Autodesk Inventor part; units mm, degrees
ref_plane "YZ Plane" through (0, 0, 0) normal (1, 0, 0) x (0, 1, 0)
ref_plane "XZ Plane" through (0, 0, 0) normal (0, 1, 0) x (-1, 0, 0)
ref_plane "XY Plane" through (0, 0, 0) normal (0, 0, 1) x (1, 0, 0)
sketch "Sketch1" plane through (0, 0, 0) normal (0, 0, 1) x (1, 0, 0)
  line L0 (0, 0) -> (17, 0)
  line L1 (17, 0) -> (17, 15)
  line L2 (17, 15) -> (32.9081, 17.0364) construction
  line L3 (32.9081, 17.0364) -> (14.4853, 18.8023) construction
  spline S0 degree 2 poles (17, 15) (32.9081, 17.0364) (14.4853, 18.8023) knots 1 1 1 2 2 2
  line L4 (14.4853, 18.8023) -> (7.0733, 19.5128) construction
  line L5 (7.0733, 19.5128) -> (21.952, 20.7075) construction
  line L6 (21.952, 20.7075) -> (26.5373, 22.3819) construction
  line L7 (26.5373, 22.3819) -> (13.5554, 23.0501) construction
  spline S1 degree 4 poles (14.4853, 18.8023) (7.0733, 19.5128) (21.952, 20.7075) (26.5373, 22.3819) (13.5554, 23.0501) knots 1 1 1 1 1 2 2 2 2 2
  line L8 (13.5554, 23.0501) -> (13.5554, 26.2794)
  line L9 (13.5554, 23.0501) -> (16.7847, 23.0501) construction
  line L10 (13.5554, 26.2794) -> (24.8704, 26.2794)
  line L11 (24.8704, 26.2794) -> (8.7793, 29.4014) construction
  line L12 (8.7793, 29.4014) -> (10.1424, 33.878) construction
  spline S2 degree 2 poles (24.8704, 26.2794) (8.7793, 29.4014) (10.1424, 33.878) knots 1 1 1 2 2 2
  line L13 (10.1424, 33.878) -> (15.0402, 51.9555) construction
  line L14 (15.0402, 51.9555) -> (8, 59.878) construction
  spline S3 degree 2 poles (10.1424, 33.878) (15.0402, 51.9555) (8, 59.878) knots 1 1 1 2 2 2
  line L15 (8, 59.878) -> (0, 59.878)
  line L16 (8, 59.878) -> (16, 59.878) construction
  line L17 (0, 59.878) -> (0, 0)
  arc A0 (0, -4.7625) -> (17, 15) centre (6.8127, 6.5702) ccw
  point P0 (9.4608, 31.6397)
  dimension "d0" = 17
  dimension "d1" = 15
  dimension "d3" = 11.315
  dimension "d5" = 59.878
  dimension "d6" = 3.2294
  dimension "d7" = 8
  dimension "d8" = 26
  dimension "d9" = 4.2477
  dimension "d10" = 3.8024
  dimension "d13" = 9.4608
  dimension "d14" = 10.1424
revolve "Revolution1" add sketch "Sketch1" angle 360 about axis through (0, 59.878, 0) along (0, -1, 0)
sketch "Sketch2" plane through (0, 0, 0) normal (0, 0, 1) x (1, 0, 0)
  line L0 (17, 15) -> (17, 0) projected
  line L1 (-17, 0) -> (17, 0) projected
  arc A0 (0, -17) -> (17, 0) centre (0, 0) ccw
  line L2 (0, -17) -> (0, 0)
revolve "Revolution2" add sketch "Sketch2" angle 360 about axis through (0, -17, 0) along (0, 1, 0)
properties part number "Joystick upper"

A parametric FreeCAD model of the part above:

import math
import FreeCAD as App
import Part
import Sketcher

V = App.Vector
Q = App.Units.Quantity

doc = App.newDocument("Part")
body = doc.addObject("PartDesign::Body", "Body")

# Sketch on XY plane
sketch1 = doc.addObject("Sketcher::SketchObject", "Sketch")
body.addObject(sketch1)
sketch1.AttachmentSupport = (doc.XY_Plane, [""])
sketch1.MapMode = "FlatFace"
sketch1.addGeometry([
    Part.LineSegment(V(0, 59.878, 0), V(0, 0, 0)),  # 0
    Part.LineSegment(V(0, 0, 0), V(17, 0, 0)),  # 1
    Part.LineSegment(V(17, 0, 0), V(17, 15, 0)),  # 2
    Part.BSplineCurve([V(17, 15, 0), V(32.9081, 17.0364, 0), V(14.4853, 18.8023, 0)], [3, 3], [1, 2], False, 2, [1, 1, 1], False),  # 3
    Part.BSplineCurve([V(14.4853, 18.8023, 0), V(7.0733, 19.5128, 0), V(21.952, 20.7075, 0), V(26.5373, 22.3819, 0), V(13.5554, 23.0501, 0)], [5, 5], [1, 2], False, 4, [1, 1, 1, 1, 1], False),  # 4
    Part.LineSegment(V(13.5554, 23.0501, 0), V(13.5554, 26.2794, 0)),  # 5
    Part.LineSegment(V(13.5554, 26.2794, 0), V(24.8704, 26.2794, 0)),  # 6
    Part.BSplineCurve([V(24.8704, 26.2794, 0), V(8.7793, 29.4014, 0), V(10.1424, 33.878, 0)], [3, 3], [1, 2], False, 2, [1, 1, 1], False),  # 7
    Part.BSplineCurve([V(10.1424, 33.878, 0), V(15.0402, 51.9555, 0), V(8, 59.878, 0)], [3, 3], [1, 2], False, 2, [1, 1, 1], False),  # 8
    Part.LineSegment(V(8, 59.878, 0), V(0, 59.878, 0)),  # 9
], False)
sketch1.addConstraint([
    Sketcher.Constraint("Block", 3),
    Sketcher.Constraint("Block", 4),
    Sketcher.Constraint("Block", 7),
    Sketcher.Constraint("Block", 8),
    Sketcher.Constraint("Coincident", 0, 2, 1, 1),
    Sketcher.Constraint("Coincident", 1, 2, 2, 1),
    Sketcher.Constraint("Coincident", 2, 2, 3, 1),
    Sketcher.Constraint("Coincident", 4, 2, 5, 1),
    Sketcher.Constraint("Coincident", 5, 2, 6, 1),
    Sketcher.Constraint("Coincident", 6, 2, 7, 1),
    Sketcher.Constraint("Coincident", 8, 2, 9, 1),
    Sketcher.Constraint("Coincident", 9, 2, 0, 1),
    Sketcher.Constraint("Vertical", 0),
    Sketcher.Constraint("Horizontal", 1),
    Sketcher.Constraint("Vertical", 2),
    Sketcher.Constraint("Vertical", 5),
    Sketcher.Constraint("Horizontal", 6),
    Sketcher.Constraint("Horizontal", 9),
    Sketcher.Constraint("Coincident", 0, 2, -1, 1),
])
revolution = doc.addObject("PartDesign::Revolution", "Revolution")
body.addObject(revolution)
revolution.Profile = sketch1
revolution.ReferenceAxis = (sketch1, ["V_Axis"])
revolution.Angle = 360

# Sketch on XY plane
sketch2 = doc.addObject("Sketcher::SketchObject", "Sketch001")
body.addObject(sketch2)
sketch2.AttachmentSupport = (doc.XY_Plane, [""])
sketch2.MapMode = "FlatFace"
sketch2.addGeometry([
    Part.LineSegment(V(17, 0, 0), V(0, 0, 0)),
    Part.LineSegment(V(0, 0, 0), V(0, -17, 0)),
    Part.ArcOfCircle(Part.Circle(V(0, 0, 0), V(0, 0, 1), 17), math.radians(-90), math.radians(0)),
], False)
sketch2.addConstraint([
    Sketcher.Constraint("Coincident", 0, 2, 1, 1),
    Sketcher.Constraint("Coincident", 1, 2, 2, 1),
    Sketcher.Constraint("Coincident", 2, 2, 0, 1),
    Sketcher.Constraint("Horizontal", 0),
    Sketcher.Constraint("Vertical", 1),
    Sketcher.Constraint("Coincident", 2, 3, -1, 1),
    Sketcher.Constraint("Coincident", 0, 2, -1, 1),
    Sketcher.Constraint("Radius", 2, Q("17 mm")),
])
revolution2 = doc.addObject("PartDesign::Revolution", "Revolution001")
body.addObject(revolution2)
revolution2.Profile = sketch2
revolution2.ReferenceAxis = (sketch2, ["V_Axis"])
revolution2.Angle = 360

doc.recompute()
